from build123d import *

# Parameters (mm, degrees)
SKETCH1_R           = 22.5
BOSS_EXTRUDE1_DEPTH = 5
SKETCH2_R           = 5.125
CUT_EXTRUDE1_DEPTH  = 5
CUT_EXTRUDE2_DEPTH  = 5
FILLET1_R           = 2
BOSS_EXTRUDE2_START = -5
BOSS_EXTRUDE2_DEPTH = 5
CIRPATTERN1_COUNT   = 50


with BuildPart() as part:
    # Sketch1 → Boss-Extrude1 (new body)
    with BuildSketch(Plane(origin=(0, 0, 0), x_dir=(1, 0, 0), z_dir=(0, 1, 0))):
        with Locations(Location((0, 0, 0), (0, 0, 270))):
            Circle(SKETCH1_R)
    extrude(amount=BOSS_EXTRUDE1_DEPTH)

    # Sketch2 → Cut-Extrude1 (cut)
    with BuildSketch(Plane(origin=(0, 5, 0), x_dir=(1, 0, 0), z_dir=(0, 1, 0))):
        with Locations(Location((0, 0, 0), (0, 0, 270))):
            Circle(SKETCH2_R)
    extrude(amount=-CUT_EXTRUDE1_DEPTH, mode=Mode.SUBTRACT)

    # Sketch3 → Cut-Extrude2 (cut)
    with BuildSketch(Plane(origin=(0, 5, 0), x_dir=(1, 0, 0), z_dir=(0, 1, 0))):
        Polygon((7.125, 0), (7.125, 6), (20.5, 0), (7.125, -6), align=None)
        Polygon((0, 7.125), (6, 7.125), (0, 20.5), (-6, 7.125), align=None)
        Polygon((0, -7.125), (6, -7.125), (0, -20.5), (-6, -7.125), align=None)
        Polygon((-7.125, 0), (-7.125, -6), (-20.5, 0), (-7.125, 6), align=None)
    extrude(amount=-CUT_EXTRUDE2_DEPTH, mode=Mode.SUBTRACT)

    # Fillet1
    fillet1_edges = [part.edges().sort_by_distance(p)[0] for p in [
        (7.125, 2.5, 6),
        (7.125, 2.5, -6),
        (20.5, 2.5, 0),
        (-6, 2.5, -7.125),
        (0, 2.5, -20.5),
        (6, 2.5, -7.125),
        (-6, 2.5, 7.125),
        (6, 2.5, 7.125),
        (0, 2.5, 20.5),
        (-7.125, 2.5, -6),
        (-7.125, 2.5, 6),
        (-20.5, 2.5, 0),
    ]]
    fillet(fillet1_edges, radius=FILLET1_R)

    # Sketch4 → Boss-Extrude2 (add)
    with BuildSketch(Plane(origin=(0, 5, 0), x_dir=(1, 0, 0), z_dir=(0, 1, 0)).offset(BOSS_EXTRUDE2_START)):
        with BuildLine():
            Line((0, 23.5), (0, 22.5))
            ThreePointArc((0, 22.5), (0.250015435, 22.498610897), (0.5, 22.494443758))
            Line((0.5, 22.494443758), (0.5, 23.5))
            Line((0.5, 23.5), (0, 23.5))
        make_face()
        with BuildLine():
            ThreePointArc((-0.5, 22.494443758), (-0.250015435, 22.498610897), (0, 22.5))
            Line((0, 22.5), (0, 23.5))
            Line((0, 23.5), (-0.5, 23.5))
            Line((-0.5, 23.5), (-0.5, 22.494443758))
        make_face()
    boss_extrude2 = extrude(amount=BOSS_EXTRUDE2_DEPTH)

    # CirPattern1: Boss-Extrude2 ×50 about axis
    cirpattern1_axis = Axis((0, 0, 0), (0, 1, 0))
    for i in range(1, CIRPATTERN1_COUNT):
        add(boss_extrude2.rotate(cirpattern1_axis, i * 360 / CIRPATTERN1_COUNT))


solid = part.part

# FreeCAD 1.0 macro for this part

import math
import FreeCAD as App
import Part
import Sketcher
Q = App.Units.Quantity


def edges_at(feature, points):
    """Names of the edges that pass closest to the given points."""
    edges = feature.Shape.Edges
    near = lambda p: min(range(len(edges)), key=lambda i: edges[i].distToShape(Part.Vertex(*p))[0])
    return sorted({f"Edge{near(p) + 1}" for p in points})


def add_polygon(sketch, points):
    """Adds a closed chain of lines whose ends are joined by coincident constraints."""
    first, n = sketch.GeometryCount, len(points)
    for a, b in zip(points, points[1:] + points[:1]):
        sketch.addGeometry(Part.LineSegment(App.Vector(*a, 0), App.Vector(*b, 0)), False)
    for i in range(n):
        sketch.addConstraint(Sketcher.Constraint("Coincident", first + i, 2, first + (i + 1) % n, 1))

doc = App.newDocument("Part")
body = doc.addObject("PartDesign::Body", "Body")

# Sketch on XZ plane
sketch1 = body.newObject("Sketcher::SketchObject", "Sketch")
sketch1.AttachmentSupport = (doc.getObject("XZ_Plane"), [""])
sketch1.MapMode = "FlatFace"
sketch1.addGeometry(Part.Circle(App.Vector(0, 0, 0), App.Vector(0, 0, 1), 22), False)
sketch1.addConstraint([
    Sketcher.Constraint("Coincident", 0, 3, -1, 1),
    Sketcher.Constraint("Diameter", 0, Q("45 mm")),
])
pad1 = body.newObject("PartDesign::Pad", "Pad")
pad1.Profile = sketch1
pad1.Length = 5
pad1.Reversed = True

# Sketch on XZ plane
sketch2 = body.newObject("Sketcher::SketchObject", "Sketch001")
sketch2.AttachmentSupport = (doc.getObject("XZ_Plane"), [""])
sketch2.MapMode = "FlatFace"
sketch2.AttachmentOffset = App.Placement(App.Vector(0, 0, -5), App.Rotation())
sketch2.addGeometry(Part.Circle(App.Vector(0, 0, 0), App.Vector(0, 0, 1), 5), False)
sketch2.addConstraint([
    Sketcher.Constraint("Coincident", 0, 3, -1, 1),
    Sketcher.Constraint("Diameter", 0, Q("10.25 mm")),
])
pocket1 = body.newObject("PartDesign::Pocket", "Pocket")
pocket1.Profile = sketch2
pocket1.Length = 5
pocket1.Reversed = True

# Sketch on XZ plane
sketch3 = body.newObject("Sketcher::SketchObject", "Sketch002")
sketch3.AttachmentSupport = (doc.getObject("XZ_Plane"), [""])
sketch3.MapMode = "FlatFace"
sketch3.AttachmentOffset = App.Placement(App.Vector(0, 0, -5), App.Rotation())
add_polygon(sketch3, [(7, -6), (7, 6), (20, 0)])  # lines 0-2
add_polygon(sketch3, [(6, -7), (0, -20), (-6, -7)])  # lines 3-5
add_polygon(sketch3, [(6, 7), (-6, 7), (0, 20)])  # lines 6-8
add_polygon(sketch3, [(-7, 6), (-7, -6), (-20, 0)])  # lines 9-11
sketch3.addConstraint([
    Sketcher.Constraint("Vertical", 0),
    Sketcher.Constraint("Horizontal", 5),
    Sketcher.Constraint("Horizontal", 6),
    Sketcher.Constraint("Vertical", 9),
    Sketcher.Constraint("Symmetric", 5, 2, 6, 2, -1, 1),
    Sketcher.Constraint("Symmetric", 3, 2, 7, 2, -1, 1),
    Sketcher.Constraint("Symmetric", 0, 2, 9, 2, -1, 1),
    Sketcher.Constraint("Symmetric", 1, 2, 10, 2, -1, 1),
    Sketcher.Constraint("PointOnObject", 1, 2, -1),
    Sketcher.Constraint("PointOnObject", 3, 2, -2),
    Sketcher.Constraint("Perpendicular", 1, 3),
    Sketcher.Constraint("Perpendicular", 2, 4),
    Sketcher.Constraint("Parallel", 4, 8),
    Sketcher.Constraint("Perpendicular", 8, 11),
    Sketcher.Constraint("Horizontal", 2, 2, 9, 2),
    Sketcher.Constraint("Equal", 6, 0),
    Sketcher.Constraint("DistanceX", 5, 1, 5, 2, Q("12 mm")),
    Sketcher.Constraint("DistanceX", -1, 1, 1, 2, Q("20.5 mm")),
    Sketcher.Constraint("DistanceY", 3, 2, -1, 1, Q("20.5 mm")),
    Sketcher.Constraint("DistanceY", 4, 2, 6, 2, Q("14.25 mm")),
])
pocket2 = body.newObject("PartDesign::Pocket", "Pocket001")
pocket2.Profile = sketch3
pocket2.Length = 5
pocket2.Reversed = True
doc.recompute()

fillet = body.newObject("PartDesign::Fillet", "Fillet")
fillet.Base = (pocket2, edges_at(pocket2, [
    (7.125, 2.5, 6),
    (7.125, 2.5, -6),
    (20.5, 2.5, 0),
    (-6, 2.5, -7.125),
    (0, 2.5, -20.5),
    (6, 2.5, -7.125),
    (-6, 2.5, 7.125),
    (6, 2.5, 7.125),
    (0, 2.5, 20.5),
    (-7.125, 2.5, -6),
    (-7.125, 2.5, 6),
    (-20.5, 2.5, 0),
]))
fillet.Radius = 2

# Sketch on XZ plane
sketch4 = body.newObject("Sketcher::SketchObject", "Sketch003")
sketch4.AttachmentSupport = (doc.getObject("XZ_Plane"), [""])
sketch4.MapMode = "FlatFace"
sketch4.addGeometry([
    Part.ArcOfCircle(Part.Circle(App.Vector(0, 0, 0), App.Vector(0, 0, 1), 22.5), math.radians(-90), math.radians(-88.73)),  # 0
    Part.LineSegment(App.Vector(0.5, -22.5, 0), App.Vector(0.5, -23.5, 0)),  # 1
    Part.LineSegment(App.Vector(0.5, -23.5, 0), App.Vector(-0.5, -23.5, 0)),  # 2
    Part.LineSegment(App.Vector(-0.5, -23.5, 0), App.Vector(-0.5, -22.5, 0)),  # 3
    Part.ArcOfCircle(Part.Circle(App.Vector(0, 0, 0), App.Vector(0, 0, 1), 22.5), math.radians(-91.27), math.radians(-90)),  # 4
], False)
sketch4.addConstraint([
    Sketcher.Constraint("Coincident", 0, 2, 1, 1),
    Sketcher.Constraint("Coincident", 1, 2, 2, 1),
    Sketcher.Constraint("Coincident", 2, 2, 3, 1),
    Sketcher.Constraint("Coincident", 3, 2, 4, 1),
    Sketcher.Constraint("Tangent", 4, 2, 0, 1),
    Sketcher.Constraint("Vertical", 1),
    Sketcher.Constraint("Horizontal", 2),
    Sketcher.Constraint("Vertical", 3),
    Sketcher.Constraint("Coincident", 0, 3, -1, 1),
    Sketcher.Constraint("Equal", 0, 4),
    Sketcher.Constraint("PointOnObject", 4, 2, -2),
    Sketcher.Constraint("Horizontal", 0, 2, 3, 2),
    Sketcher.Constraint("DistanceX", 2, 2, 2, 1, Q("1 mm")),
    Sketcher.Constraint("DistanceY", 2, 2, 4, 2, Q("1 mm")),
    Sketcher.Constraint("DistanceY", 1, 2, -1, 1, Q("23.5 mm")),
])
pad2 = body.newObject("PartDesign::Pad", "Pad001")
pad2.Profile = sketch4
pad2.Length = 5
pad2.Reversed = True
doc.recompute()

polarpattern = body.newObject("PartDesign::PolarPattern", "PolarPattern")
polarpattern.Originals = [pad2]
polarpattern.Axis = (doc.getObject("Y_Axis"), [""])
polarpattern.Angle = 360
polarpattern.Occurrences = 50
body.Tip = polarpattern

doc.recompute()
